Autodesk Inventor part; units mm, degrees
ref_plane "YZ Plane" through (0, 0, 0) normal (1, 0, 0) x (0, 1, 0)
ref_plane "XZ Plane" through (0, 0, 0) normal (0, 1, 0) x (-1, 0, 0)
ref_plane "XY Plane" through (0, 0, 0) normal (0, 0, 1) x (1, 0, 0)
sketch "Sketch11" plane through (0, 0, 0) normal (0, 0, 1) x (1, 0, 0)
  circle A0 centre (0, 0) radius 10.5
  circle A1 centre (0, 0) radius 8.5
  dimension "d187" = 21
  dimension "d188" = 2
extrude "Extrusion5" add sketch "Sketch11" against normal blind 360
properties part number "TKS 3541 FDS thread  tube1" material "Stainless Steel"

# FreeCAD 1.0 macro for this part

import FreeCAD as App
import Part
import Sketcher

doc = App.newDocument("Part")
params = doc.addObject("Spreadsheet::Sheet", "Params")
for row, (alias, value) in enumerate([
    ("sketch1_diameter", "21 mm"),
    ("sketch1_diameter2", "17 mm"),
    ("pad1_length", "360 mm"),
], start=1):
    params.set(f"A{row}", alias)
    params.set(f"B{row}", "=" + value)
    params.setAlias(f"B{row}", alias)

body = doc.addObject("PartDesign::Body", "Body")

# Sketch on XY plane
sketch1 = doc.addObject("Sketcher::SketchObject", "Sketch")
body.addObject(sketch1)
sketch1.AttachmentSupport = (doc.XY_Plane, [""])
sketch1.MapMode = "FlatFace"
sketch1.addGeometry(Part.Circle(App.Vector(0, 0, 0), App.Vector(0, 0, 1), 10.5), False)
sketch1.addGeometry(Part.Circle(App.Vector(0, 0, 0), App.Vector(0, 0, 1), 8.5), False)
sketch1.addConstraint(Sketcher.Constraint("Coincident", 0, 3, -1, 1))
sketch1.addConstraint(Sketcher.Constraint("Coincident", 1, 3, -1, 1))
sketch1.addConstraint(Sketcher.Constraint("Diameter", 0, 21.0))
sketch1.addConstraint(Sketcher.Constraint("Diameter", 1, 17.0))
sketch1.setExpression("Constraints[2]", "Params.sketch1_diameter")
sketch1.setExpression("Constraints[3]", "Params.sketch1_diameter2")
pad1 = doc.addObject("PartDesign::Pad", "Pad")
body.addObject(pad1)
pad1.Profile = sketch1
pad1.setExpression("Length", "Params.pad1_length")
pad1.Reversed = True

doc.recompute()
